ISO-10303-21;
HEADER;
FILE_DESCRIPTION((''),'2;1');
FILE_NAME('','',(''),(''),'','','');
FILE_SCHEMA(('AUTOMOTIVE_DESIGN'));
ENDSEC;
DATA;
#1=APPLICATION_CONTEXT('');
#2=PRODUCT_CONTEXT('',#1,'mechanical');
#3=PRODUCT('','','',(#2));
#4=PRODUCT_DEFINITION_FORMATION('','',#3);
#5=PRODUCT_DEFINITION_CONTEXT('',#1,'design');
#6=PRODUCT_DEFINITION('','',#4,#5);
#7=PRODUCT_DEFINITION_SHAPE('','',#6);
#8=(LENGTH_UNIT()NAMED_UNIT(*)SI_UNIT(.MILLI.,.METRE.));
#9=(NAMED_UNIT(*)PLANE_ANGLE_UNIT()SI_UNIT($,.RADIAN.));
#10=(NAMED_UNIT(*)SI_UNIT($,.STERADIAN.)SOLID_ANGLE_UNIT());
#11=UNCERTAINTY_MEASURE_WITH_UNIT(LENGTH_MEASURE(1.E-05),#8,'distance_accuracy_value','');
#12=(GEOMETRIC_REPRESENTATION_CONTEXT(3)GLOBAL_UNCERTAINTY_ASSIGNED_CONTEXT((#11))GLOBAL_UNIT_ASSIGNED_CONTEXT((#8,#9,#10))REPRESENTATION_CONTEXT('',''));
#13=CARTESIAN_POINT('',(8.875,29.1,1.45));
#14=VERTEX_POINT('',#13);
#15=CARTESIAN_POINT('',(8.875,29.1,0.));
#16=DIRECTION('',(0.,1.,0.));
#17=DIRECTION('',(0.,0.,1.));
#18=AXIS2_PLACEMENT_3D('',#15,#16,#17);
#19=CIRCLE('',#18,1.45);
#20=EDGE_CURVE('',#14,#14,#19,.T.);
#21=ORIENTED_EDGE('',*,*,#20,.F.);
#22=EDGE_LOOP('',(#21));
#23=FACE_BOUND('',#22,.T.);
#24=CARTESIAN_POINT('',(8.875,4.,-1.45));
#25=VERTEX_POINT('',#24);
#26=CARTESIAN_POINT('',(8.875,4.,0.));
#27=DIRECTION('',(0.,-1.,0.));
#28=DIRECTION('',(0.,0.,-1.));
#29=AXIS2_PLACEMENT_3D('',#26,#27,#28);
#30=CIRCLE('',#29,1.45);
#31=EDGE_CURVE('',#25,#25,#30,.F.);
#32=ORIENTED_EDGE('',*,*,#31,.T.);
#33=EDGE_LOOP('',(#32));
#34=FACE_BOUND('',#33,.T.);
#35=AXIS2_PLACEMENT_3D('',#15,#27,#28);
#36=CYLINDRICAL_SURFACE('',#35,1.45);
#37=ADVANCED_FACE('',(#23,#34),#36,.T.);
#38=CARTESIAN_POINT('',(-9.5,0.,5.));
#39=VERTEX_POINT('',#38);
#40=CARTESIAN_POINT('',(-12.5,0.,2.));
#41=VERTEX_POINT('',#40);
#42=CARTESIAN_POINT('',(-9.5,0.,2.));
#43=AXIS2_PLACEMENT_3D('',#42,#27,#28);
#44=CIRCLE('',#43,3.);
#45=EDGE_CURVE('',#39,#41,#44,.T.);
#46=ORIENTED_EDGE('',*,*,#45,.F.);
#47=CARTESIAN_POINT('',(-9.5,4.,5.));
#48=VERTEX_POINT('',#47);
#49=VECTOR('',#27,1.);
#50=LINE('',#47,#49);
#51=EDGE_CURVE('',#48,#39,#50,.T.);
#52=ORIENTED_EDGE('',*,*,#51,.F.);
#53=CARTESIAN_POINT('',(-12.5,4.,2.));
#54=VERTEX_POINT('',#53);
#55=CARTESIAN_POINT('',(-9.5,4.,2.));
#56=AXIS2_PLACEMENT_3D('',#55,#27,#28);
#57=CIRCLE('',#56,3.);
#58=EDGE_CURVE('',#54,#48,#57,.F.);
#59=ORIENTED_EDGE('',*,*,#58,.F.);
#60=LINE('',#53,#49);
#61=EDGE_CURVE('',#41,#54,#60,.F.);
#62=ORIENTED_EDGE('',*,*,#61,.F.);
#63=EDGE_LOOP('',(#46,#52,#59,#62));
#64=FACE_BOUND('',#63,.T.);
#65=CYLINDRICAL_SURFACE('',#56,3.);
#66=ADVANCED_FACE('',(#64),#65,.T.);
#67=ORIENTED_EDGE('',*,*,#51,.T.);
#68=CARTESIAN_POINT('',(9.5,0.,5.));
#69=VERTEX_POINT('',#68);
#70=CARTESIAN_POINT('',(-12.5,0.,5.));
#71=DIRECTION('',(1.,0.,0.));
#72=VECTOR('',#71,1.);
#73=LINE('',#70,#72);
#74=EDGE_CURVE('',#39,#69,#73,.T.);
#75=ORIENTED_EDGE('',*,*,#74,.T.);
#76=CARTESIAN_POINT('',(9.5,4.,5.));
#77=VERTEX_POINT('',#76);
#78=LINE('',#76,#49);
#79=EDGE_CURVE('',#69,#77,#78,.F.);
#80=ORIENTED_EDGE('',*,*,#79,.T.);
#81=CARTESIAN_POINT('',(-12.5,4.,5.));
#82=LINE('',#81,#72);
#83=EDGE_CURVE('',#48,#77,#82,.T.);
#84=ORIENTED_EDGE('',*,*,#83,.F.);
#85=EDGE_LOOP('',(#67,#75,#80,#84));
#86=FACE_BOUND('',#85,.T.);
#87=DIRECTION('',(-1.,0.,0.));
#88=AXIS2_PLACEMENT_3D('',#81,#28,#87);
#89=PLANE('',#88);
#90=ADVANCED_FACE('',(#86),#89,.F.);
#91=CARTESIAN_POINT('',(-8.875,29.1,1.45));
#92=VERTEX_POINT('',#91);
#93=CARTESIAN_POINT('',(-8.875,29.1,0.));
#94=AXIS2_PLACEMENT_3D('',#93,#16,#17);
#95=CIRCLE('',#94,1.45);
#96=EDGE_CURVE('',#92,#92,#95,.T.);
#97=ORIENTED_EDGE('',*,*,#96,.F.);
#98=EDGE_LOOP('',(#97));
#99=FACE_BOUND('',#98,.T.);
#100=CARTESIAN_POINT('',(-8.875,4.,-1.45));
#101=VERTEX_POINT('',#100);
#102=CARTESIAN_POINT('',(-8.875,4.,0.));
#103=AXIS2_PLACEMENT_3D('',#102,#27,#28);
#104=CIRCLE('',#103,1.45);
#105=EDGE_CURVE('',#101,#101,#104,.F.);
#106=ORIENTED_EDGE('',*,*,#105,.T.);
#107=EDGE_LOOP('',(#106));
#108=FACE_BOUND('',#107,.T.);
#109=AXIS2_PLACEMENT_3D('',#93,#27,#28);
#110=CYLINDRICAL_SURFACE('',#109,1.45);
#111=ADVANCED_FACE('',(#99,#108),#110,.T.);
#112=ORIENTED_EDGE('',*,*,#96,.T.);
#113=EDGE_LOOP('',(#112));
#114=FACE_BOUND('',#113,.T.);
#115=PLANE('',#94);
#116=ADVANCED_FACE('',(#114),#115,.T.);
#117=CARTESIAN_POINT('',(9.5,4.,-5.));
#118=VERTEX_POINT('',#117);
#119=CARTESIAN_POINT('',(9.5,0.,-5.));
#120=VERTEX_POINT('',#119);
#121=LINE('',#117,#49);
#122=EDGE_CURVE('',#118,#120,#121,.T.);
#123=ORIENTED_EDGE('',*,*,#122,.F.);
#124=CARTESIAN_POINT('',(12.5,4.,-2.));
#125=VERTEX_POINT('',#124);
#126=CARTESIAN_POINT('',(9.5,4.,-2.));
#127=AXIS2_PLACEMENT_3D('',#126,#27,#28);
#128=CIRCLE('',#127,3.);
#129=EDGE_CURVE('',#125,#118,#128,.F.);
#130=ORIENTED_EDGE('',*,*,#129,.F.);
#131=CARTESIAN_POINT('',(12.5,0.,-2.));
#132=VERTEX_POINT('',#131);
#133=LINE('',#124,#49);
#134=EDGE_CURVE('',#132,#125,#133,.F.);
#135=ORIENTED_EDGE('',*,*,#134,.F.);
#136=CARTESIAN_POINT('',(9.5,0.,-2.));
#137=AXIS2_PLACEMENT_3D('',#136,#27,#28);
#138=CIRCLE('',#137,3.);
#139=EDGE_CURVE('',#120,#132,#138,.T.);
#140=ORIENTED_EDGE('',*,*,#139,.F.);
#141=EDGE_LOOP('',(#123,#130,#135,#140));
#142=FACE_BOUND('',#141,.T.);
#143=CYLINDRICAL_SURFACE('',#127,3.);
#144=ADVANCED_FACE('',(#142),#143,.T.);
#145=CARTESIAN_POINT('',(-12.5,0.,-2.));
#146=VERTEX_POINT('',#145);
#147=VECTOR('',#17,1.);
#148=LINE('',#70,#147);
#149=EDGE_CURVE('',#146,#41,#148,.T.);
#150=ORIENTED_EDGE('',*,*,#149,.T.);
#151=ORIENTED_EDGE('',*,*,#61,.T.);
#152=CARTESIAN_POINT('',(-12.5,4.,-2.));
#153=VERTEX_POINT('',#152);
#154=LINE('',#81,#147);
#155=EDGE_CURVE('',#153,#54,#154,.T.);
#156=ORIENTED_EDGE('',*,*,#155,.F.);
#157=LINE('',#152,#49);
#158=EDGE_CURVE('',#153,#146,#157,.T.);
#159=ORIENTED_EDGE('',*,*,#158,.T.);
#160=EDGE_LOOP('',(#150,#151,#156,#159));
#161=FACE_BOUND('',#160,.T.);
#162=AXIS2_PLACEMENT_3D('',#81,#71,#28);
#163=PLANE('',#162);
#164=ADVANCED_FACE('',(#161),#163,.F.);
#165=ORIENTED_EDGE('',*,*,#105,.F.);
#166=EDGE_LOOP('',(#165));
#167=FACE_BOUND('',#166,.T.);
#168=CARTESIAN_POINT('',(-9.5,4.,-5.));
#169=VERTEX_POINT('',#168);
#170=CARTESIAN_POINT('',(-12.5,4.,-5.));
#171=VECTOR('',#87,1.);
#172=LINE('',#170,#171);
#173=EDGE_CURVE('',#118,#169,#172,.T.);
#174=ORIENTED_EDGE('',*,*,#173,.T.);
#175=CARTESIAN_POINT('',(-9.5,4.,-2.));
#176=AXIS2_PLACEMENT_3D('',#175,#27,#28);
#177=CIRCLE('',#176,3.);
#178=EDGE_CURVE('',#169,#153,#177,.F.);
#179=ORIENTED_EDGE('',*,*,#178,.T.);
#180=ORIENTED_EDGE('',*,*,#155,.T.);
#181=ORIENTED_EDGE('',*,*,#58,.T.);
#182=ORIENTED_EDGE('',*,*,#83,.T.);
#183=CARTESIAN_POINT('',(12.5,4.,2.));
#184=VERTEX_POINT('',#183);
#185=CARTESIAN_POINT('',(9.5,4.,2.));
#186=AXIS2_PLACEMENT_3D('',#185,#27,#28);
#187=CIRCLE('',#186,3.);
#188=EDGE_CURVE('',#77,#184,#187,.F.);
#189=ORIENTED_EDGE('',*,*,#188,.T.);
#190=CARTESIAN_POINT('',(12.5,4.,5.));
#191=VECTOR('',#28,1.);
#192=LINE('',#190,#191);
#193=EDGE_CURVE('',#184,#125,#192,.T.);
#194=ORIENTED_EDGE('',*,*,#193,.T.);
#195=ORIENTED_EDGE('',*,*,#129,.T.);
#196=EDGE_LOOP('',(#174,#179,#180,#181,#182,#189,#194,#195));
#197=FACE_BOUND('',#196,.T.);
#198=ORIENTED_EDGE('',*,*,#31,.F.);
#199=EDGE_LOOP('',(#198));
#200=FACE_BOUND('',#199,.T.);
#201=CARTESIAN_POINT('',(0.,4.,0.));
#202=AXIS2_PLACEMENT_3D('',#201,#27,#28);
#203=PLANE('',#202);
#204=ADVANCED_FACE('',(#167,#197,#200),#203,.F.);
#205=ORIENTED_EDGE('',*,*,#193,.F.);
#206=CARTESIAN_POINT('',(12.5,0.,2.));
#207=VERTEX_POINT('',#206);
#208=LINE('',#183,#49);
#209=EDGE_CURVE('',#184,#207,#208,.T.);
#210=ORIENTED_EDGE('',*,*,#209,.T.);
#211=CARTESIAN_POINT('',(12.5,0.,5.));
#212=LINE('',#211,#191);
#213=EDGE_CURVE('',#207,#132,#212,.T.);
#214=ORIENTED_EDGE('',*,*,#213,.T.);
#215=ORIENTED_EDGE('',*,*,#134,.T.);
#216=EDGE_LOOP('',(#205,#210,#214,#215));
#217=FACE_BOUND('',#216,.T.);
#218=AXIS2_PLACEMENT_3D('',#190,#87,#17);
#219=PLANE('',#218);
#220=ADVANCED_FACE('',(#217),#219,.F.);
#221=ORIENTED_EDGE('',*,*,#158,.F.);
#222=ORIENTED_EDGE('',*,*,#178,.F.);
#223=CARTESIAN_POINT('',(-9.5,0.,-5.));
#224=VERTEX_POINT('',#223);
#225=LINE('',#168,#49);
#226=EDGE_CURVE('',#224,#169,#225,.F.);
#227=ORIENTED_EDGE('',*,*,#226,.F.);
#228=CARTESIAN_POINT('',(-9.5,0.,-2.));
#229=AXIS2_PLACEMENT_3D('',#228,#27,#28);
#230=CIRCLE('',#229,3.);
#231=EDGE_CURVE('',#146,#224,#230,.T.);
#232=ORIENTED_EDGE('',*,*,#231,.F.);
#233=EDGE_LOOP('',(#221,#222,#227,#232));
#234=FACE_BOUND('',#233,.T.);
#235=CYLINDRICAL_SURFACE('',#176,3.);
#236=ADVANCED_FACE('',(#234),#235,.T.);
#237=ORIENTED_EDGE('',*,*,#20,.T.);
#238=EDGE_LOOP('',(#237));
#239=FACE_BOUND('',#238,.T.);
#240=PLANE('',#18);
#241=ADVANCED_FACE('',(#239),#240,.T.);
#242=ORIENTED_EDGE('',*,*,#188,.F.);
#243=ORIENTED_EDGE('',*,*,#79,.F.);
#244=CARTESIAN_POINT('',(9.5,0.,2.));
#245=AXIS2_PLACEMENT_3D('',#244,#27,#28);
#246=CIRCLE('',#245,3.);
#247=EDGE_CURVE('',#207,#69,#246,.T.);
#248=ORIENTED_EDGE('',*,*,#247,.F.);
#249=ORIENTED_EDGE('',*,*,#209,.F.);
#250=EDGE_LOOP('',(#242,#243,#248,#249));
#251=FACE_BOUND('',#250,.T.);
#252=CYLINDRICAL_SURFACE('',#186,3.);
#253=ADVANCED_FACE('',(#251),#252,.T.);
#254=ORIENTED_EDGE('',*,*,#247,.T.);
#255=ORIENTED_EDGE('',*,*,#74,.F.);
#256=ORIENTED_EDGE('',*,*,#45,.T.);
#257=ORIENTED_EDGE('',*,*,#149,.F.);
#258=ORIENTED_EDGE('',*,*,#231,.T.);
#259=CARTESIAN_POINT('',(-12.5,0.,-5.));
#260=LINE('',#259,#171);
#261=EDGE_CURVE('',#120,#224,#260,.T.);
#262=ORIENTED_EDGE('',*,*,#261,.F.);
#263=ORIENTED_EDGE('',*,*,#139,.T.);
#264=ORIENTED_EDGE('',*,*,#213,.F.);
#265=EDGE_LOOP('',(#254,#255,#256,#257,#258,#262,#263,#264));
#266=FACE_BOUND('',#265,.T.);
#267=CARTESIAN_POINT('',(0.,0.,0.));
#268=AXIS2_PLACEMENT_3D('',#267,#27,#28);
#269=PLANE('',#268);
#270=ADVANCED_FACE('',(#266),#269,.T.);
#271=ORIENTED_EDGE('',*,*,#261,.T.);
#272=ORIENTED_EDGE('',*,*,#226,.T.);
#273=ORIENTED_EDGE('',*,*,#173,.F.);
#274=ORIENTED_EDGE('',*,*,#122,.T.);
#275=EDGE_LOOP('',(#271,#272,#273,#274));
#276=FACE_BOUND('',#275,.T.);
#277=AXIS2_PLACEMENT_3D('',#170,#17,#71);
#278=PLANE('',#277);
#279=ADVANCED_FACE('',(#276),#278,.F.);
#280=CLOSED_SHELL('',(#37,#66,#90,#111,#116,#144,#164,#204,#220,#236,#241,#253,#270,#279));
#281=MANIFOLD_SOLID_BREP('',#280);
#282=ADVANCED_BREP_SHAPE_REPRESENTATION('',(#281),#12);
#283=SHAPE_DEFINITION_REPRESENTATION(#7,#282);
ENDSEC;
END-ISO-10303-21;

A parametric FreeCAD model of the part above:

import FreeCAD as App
import Part
import Sketcher
from FreeCAD import Vector


def edges_at(feature, points):
    """Names of the edges that pass closest to the given points."""
    edges = feature.Shape.Edges
    near = lambda p: min(range(len(edges)), key=lambda i: edges[i].distToShape(Part.Vertex(*p))[0])
    return sorted({f"Edge{near(p) + 1}" for p in points})


def add_polygon(sketch, points):
    """Adds a closed chain of lines whose ends are joined by coincident constraints."""
    first, n = sketch.GeometryCount, len(points)
    for a, b in zip(points, points[1:] + points[:1]):
        sketch.addGeometry(Part.LineSegment(App.Vector(*a, 0), App.Vector(*b, 0)), False)
    for i in range(n):
        sketch.addConstraint(Sketcher.Constraint("Coincident", first + i, 2, first + (i + 1) % n, 1))

doc = App.newDocument("Part")
body = doc.addObject("PartDesign::Body", "Body")

# Sketch on XZ plane
sketch1 = doc.addObject("Sketcher::SketchObject", "Sketch")
body.addObject(sketch1)
sketch1.AttachmentSupport = (doc.XZ_Plane, [""])
sketch1.MapMode = "FlatFace"
add_polygon(sketch1, [(-12, -5), (-12, 5), (12, 5), (12, -5)])  # lines 0-3
sketch1.addConstraint([
    Sketcher.Constraint("Vertical", 0),
    Sketcher.Constraint("Horizontal", 1),
    Sketcher.Constraint("Vertical", 2),
    Sketcher.Constraint("Horizontal", 3),
    Sketcher.Constraint("Symmetric", 0, 2, 2, 2, -1, 1),
    Sketcher.Constraint("DistanceX", 1, 1, 1, 2, 25.0),
    Sketcher.Constraint("DistanceY", 0, 1, 0, 2, 10.0),
])
pad1 = doc.addObject("PartDesign::Pad", "Pad")
body.addObject(pad1)
pad1.Profile = sketch1
pad1.Length = 4
pad1.Reversed = True

# Sketch on XZ plane
sketch2 = doc.addObject("Sketcher::SketchObject", "Sketch001")
body.addObject(sketch2)
sketch2.AttachmentSupport = (doc.XZ_Plane, [""])
sketch2.MapMode = "FlatFace"
sketch2.AttachmentOffset = App.Placement(Vector(0, 0, -4), App.Rotation())
sketch2.addGeometry([
    Part.Circle(Vector(8.9, 0, 0), Vector(0, 0, 1), 1.4),
    Part.Circle(Vector(-8.9, 0, 0), Vector(0, 0, 1), 1.4),
], False)
sketch2.addConstraint([
    Sketcher.Constraint("Equal", 0, 1),
    Sketcher.Constraint("Symmetric", 0, 3, 1, 3, -1, 1),
    Sketcher.Constraint("PointOnObject", 0, 3, -1),
    Sketcher.Constraint("Diameter", 0, 2.9),
    Sketcher.Constraint("DistanceX", 1, 3, 0, 3, 17.75),
])
pad2 = doc.addObject("PartDesign::Pad", "Pad001")
body.addObject(pad2)
pad2.Profile = sketch2
pad2.Length = 25.1
pad2.Reversed = True
doc.recompute()

fillet = doc.addObject("PartDesign::Fillet", "Fillet")
body.addObject(fillet)
fillet.Base = (pad2, edges_at(pad2, [
    (12.5, 2, 5),
    (-12.5, 2, 5),
    (-12.5, 2, -5),
    (12.5, 2, -5),
]))
fillet.Radius = 3

doc.recompute()
